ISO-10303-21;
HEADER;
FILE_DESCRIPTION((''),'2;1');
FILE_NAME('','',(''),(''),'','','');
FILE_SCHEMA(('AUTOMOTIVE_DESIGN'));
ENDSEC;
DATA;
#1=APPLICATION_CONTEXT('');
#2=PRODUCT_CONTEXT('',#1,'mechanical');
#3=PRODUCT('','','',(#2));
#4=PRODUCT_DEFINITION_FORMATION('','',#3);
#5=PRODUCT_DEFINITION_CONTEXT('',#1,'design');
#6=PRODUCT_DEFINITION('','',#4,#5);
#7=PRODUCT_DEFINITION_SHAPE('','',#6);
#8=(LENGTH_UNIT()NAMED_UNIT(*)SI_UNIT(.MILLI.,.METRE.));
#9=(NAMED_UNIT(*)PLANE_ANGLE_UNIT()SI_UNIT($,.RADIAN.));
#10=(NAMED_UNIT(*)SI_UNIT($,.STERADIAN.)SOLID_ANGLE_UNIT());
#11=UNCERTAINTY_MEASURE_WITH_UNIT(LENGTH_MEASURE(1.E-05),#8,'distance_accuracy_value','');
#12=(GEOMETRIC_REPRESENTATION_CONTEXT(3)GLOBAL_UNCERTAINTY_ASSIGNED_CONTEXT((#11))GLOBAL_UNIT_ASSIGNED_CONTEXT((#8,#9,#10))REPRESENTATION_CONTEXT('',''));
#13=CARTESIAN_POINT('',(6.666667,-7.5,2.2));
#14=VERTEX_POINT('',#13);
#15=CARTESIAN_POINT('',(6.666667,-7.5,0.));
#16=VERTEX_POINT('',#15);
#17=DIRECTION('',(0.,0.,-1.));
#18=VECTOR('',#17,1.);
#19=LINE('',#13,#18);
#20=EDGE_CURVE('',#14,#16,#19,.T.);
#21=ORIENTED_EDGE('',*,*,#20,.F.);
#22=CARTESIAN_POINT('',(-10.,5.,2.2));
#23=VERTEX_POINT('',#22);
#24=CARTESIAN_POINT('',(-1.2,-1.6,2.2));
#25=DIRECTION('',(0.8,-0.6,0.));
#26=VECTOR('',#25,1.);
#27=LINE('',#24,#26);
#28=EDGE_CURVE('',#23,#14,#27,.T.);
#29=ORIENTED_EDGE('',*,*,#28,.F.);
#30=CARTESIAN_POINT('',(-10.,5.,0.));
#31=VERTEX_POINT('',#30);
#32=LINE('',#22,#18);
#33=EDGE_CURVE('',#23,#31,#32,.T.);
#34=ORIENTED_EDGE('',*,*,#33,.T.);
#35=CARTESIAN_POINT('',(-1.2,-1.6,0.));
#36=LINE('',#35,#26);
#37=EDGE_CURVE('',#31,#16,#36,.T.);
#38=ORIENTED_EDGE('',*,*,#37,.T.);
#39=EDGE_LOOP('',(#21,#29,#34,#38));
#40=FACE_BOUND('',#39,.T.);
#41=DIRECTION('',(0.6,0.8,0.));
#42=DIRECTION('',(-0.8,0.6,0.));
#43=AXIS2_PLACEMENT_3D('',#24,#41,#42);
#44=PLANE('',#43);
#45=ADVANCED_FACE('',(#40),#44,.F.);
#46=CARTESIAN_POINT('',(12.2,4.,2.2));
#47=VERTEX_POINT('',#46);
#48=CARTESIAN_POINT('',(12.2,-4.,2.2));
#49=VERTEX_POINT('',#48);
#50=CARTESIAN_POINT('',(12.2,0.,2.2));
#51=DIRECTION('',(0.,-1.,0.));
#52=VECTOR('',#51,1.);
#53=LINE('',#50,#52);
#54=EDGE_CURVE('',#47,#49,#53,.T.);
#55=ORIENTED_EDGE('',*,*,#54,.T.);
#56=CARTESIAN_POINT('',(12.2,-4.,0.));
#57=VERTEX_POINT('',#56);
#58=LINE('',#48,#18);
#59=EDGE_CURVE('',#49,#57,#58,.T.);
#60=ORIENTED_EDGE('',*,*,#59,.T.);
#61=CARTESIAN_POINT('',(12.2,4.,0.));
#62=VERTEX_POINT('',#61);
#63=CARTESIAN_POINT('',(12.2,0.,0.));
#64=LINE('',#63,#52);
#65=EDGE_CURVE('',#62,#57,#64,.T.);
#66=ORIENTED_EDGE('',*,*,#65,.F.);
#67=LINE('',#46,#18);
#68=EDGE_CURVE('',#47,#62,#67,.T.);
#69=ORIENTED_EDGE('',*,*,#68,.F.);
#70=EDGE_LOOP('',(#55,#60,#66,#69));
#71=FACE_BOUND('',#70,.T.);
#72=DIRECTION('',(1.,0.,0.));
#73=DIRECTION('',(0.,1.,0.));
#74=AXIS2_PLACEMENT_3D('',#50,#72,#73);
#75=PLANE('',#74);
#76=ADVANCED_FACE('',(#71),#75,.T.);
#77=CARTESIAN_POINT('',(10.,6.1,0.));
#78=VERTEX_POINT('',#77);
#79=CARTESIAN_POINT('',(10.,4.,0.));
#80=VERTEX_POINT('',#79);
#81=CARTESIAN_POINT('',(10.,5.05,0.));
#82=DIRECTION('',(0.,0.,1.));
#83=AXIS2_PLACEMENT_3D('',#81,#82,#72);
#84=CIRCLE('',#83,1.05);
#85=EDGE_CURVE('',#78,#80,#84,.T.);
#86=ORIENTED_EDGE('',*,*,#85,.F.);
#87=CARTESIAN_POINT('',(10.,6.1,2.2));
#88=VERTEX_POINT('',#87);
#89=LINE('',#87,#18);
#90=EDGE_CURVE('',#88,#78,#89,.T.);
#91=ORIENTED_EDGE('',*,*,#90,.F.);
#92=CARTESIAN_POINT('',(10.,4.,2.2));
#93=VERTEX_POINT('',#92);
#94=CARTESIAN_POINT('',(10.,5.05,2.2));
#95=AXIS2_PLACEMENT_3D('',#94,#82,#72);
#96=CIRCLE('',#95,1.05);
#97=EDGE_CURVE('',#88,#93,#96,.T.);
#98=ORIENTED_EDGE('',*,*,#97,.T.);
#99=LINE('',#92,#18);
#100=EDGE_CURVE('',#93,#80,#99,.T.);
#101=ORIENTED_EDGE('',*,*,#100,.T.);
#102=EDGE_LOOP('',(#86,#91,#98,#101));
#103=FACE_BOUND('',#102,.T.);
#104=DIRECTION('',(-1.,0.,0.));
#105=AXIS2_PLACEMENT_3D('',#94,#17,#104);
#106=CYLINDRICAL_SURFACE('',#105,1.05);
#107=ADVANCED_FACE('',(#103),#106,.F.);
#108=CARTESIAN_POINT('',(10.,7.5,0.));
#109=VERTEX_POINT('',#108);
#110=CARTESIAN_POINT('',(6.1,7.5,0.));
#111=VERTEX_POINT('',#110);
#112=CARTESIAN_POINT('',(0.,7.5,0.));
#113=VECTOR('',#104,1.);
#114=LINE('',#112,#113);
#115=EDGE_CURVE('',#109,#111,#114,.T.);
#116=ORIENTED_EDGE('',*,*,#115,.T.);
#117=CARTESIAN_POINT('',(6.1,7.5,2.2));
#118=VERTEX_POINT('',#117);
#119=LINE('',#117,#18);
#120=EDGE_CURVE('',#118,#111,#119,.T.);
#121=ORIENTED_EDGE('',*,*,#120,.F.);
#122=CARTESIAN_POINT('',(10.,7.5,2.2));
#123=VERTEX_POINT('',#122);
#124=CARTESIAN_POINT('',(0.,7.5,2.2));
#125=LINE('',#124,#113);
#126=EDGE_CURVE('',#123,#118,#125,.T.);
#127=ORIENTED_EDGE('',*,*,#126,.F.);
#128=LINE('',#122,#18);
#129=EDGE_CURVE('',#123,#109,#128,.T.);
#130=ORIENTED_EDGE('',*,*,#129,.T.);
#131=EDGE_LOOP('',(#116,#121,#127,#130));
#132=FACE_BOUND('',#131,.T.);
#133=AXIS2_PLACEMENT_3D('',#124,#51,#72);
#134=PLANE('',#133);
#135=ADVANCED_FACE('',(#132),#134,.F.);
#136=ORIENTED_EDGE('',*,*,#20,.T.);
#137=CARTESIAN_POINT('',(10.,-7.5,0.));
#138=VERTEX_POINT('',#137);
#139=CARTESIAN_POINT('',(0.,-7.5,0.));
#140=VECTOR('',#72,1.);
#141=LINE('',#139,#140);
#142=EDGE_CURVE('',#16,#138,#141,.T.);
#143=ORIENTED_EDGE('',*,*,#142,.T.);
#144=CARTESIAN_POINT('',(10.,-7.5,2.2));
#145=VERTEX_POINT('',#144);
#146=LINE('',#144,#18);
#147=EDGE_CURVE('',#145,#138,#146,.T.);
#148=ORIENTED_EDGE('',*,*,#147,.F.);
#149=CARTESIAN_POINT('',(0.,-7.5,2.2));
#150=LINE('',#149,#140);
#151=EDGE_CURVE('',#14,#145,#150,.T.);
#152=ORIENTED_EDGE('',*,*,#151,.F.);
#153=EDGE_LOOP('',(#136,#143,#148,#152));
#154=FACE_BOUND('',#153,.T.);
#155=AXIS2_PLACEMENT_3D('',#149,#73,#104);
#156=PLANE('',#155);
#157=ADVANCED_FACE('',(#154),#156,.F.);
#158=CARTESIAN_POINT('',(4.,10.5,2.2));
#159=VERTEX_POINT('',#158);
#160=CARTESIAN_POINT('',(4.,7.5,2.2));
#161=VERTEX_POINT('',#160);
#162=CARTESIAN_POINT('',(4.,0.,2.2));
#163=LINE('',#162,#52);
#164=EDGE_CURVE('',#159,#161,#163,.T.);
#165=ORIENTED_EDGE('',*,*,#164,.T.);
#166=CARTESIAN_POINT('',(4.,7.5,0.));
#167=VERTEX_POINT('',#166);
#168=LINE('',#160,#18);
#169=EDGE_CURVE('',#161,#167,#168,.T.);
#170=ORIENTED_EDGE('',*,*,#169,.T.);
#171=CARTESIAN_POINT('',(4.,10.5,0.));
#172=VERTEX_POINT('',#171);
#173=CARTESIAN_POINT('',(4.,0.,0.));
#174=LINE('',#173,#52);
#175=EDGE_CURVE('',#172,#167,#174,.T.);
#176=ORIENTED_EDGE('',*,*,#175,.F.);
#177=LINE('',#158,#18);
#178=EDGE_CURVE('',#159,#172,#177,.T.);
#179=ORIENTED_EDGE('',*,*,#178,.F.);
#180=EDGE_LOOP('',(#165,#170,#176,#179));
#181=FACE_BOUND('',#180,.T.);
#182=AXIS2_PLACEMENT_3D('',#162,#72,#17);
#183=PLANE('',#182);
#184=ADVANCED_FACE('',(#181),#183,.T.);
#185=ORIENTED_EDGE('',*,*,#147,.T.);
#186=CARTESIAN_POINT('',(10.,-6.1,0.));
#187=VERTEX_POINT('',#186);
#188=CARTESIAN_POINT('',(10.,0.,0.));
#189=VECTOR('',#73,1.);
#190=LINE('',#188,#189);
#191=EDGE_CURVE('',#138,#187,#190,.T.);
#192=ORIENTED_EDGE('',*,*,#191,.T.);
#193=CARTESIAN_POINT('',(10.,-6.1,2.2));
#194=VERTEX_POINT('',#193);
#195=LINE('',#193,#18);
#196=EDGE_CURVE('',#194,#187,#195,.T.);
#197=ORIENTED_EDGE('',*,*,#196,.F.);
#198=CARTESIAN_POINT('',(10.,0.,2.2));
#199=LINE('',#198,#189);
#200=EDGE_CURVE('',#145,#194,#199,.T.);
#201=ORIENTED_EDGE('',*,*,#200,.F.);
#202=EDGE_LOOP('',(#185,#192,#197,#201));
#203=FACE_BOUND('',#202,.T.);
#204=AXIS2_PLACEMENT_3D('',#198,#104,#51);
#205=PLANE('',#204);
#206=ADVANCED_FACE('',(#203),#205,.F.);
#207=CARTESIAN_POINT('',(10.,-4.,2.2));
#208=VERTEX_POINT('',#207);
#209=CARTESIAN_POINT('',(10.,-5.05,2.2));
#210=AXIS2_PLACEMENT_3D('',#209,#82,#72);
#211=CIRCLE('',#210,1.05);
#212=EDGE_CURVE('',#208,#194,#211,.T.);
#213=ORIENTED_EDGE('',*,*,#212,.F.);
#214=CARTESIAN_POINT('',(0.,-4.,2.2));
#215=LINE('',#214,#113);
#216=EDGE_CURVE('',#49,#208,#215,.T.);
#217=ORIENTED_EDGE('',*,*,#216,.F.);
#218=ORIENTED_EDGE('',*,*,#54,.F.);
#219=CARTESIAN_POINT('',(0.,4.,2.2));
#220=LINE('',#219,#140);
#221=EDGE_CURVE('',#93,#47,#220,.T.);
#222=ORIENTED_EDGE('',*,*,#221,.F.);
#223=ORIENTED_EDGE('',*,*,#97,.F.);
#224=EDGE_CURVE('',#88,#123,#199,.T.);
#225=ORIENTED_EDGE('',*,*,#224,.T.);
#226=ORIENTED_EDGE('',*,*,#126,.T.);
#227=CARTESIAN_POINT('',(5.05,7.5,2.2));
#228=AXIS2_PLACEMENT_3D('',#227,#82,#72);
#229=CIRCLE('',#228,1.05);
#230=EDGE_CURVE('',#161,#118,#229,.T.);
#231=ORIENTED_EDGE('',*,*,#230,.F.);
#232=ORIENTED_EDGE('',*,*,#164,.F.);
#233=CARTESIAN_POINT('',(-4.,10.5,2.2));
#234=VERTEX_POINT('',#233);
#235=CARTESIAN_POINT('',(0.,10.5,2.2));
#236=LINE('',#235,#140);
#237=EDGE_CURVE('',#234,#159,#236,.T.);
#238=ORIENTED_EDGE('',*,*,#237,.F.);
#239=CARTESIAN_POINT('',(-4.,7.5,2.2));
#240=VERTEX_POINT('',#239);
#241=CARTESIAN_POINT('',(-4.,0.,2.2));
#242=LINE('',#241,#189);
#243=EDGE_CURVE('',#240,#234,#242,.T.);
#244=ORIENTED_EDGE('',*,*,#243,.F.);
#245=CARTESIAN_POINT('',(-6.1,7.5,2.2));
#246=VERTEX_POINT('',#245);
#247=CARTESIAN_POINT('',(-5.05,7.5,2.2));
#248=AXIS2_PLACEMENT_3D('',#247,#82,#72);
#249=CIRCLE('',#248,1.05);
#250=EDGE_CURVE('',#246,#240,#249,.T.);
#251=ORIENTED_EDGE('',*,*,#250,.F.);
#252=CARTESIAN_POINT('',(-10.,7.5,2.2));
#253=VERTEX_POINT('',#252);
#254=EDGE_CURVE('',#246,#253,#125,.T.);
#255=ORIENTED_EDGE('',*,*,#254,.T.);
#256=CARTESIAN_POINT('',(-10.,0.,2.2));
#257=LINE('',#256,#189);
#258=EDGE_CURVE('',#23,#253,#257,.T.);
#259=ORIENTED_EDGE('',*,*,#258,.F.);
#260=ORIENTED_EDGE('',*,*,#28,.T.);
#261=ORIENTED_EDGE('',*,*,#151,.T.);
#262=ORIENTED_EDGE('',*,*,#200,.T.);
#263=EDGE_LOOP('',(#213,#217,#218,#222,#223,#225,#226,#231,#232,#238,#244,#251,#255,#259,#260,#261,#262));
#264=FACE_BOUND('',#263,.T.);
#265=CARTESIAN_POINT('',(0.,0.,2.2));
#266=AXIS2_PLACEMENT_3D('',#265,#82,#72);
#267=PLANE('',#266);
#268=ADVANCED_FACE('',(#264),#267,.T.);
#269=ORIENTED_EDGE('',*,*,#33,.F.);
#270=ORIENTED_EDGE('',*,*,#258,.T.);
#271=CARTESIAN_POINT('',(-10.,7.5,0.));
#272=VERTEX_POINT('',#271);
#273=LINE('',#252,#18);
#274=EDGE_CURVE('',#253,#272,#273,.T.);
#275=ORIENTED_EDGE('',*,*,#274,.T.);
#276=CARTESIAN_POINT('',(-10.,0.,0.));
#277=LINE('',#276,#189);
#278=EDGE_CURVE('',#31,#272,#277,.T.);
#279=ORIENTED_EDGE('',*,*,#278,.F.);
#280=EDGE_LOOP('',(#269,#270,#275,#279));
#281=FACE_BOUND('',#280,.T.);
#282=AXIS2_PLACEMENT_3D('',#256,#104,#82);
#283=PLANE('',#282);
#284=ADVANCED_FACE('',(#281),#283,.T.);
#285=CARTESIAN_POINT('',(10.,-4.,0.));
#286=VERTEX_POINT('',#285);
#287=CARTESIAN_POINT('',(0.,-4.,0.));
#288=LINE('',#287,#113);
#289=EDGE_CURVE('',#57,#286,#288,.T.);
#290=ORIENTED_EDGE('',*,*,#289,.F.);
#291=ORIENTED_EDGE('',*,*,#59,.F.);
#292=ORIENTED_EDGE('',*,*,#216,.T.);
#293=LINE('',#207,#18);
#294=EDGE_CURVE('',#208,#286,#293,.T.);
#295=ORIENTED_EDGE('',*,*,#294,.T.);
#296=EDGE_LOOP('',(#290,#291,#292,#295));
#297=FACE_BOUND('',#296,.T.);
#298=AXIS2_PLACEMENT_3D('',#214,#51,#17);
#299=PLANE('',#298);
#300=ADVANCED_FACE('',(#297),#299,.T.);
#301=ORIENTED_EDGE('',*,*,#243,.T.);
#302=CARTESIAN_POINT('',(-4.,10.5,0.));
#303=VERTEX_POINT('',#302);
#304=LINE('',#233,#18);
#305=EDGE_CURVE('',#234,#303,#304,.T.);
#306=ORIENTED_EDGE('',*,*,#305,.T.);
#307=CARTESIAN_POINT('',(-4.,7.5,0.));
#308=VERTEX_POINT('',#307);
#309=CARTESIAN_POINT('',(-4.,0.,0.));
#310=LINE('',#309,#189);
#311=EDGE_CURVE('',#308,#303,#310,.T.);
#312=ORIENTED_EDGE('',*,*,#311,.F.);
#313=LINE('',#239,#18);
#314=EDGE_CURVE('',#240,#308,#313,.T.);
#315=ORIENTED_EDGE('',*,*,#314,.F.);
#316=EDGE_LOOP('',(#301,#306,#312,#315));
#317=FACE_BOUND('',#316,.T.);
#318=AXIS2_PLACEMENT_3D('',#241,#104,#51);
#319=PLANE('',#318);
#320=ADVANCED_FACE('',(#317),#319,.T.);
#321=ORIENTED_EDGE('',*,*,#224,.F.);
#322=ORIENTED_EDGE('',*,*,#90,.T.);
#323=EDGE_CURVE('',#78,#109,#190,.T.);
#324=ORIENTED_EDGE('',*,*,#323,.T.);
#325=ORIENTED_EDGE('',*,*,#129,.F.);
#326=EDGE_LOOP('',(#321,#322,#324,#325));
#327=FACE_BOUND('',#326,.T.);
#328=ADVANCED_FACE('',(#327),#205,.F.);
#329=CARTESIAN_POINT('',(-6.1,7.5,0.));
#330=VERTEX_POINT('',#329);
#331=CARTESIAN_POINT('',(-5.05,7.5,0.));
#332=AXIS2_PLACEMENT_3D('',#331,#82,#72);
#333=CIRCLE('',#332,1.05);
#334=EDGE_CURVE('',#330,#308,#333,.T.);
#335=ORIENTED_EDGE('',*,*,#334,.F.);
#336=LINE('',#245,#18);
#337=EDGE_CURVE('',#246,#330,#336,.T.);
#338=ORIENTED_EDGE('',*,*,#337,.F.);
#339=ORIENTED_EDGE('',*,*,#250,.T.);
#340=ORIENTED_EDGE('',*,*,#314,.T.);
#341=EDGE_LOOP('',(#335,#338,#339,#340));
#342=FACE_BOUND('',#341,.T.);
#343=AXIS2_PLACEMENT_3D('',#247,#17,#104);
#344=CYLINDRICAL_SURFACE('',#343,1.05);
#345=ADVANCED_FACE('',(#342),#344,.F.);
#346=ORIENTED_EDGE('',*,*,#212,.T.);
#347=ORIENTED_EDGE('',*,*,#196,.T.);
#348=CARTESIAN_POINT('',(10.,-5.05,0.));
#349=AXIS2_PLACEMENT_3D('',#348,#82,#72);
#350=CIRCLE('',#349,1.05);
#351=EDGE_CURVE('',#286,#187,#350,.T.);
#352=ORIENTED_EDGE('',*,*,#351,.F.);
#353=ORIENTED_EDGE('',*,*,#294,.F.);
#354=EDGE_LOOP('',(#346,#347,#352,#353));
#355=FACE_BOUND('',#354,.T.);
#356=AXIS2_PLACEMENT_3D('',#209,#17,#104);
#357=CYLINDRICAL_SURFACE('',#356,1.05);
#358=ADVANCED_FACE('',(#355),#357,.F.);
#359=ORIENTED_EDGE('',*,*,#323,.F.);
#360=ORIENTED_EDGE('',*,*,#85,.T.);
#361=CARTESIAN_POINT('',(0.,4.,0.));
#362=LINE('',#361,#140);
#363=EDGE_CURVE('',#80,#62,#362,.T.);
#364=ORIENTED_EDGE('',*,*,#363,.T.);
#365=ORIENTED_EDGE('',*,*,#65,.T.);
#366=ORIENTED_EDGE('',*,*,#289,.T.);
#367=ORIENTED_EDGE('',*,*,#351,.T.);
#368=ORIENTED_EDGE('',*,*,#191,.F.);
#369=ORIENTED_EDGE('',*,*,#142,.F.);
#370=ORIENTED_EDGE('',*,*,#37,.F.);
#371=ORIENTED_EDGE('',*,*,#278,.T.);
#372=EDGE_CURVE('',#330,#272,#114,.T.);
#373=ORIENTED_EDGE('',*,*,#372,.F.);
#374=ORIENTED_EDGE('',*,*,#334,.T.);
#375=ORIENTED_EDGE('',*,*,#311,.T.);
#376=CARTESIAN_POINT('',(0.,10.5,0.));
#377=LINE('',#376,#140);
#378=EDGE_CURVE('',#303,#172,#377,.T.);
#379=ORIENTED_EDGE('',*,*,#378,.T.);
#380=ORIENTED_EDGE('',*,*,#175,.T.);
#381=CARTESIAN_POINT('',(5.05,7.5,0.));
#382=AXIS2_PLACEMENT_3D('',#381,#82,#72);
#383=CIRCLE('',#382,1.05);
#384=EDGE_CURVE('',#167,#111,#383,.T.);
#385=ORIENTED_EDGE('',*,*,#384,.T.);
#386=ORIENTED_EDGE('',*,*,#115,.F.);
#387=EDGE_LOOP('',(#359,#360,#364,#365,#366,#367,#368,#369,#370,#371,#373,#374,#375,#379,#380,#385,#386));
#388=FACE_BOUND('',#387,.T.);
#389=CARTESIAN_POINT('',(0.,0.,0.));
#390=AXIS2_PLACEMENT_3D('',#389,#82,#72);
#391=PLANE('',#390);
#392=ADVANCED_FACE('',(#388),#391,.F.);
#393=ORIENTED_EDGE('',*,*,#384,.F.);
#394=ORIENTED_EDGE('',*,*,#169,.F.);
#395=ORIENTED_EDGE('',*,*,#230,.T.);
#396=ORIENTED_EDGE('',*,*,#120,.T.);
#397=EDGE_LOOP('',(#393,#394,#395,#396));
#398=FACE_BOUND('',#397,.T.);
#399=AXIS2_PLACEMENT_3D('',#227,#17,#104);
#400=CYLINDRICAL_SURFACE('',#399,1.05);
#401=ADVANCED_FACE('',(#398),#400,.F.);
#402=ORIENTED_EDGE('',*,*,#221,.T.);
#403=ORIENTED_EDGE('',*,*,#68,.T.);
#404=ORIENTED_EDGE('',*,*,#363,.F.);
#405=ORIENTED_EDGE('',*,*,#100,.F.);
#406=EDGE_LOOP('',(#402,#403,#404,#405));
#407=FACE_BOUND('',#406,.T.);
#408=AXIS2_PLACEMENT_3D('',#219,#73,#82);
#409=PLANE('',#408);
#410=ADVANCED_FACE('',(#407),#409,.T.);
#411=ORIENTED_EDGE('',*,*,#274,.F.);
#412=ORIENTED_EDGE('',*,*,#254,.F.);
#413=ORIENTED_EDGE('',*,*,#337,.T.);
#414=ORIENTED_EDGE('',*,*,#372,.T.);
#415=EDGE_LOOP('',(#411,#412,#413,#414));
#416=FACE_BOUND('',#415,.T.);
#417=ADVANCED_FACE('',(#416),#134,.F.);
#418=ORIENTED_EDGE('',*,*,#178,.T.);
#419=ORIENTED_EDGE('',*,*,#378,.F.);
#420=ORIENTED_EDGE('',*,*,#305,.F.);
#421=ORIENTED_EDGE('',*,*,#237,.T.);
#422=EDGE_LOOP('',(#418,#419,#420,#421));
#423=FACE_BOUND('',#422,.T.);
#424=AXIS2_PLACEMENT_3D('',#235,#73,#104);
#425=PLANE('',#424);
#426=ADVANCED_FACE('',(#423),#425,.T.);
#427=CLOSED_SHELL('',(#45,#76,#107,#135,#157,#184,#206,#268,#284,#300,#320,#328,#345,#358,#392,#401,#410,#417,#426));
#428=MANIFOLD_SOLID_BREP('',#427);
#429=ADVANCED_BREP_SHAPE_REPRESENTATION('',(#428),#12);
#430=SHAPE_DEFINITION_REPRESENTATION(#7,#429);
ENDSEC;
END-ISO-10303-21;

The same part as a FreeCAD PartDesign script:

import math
import FreeCAD as App
import Part
import Sketcher

V = App.Vector

doc = App.newDocument("Part")
body = doc.addObject("PartDesign::Body", "Body")

# Sketch on XY plane
sketch1 = body.newObject("Sketcher::SketchObject", "Sketch")
sketch1.AttachmentSupport = (doc.getObject("XY_Plane"), [""])
sketch1.MapMode = "FlatFace"
sketch1.addGeometry([
    Part.LineSegment(V(-4, 10.5, 0), V(-4, 7.5, 0)),  # 0
    Part.ArcOfCircle(Part.Circle(V(-5.05, 7.5, 0), V(0, 0, 1), 1.05), math.radians(180), math.radians(360)),  # 1
    Part.LineSegment(V(-6.1, 7.5, 0), V(-10, 7.5, 0)),  # 2
    Part.LineSegment(V(-10, 7.5, 0), V(-10, 5, 0)),  # 3
    Part.LineSegment(V(-10, 5, 0), V(6.666667, -7.5, 0)),  # 4
    Part.LineSegment(V(6.666667, -7.5, 0), V(10, -7.5, 0)),  # 5
    Part.LineSegment(V(10, -7.5, 0), V(10, -6.1, 0)),  # 6
    Part.ArcOfCircle(Part.Circle(V(10, -5.05, 0), V(0, 0, 1), 1.05), math.radians(90), math.radians(270)),  # 7
    Part.LineSegment(V(10, -4, 0), V(12.2, -4, 0)),  # 8
    Part.LineSegment(V(12.2, -4, 0), V(12.2, 4, 0)),  # 9
    Part.LineSegment(V(12.2, 4, 0), V(10, 4, 0)),  # 10
    Part.ArcOfCircle(Part.Circle(V(10, 5.05, 0), V(0, 0, 1), 1.05), math.radians(90), math.radians(270)),  # 11
    Part.LineSegment(V(10, 6.1, 0), V(10, 7.5, 0)),  # 12
    Part.LineSegment(V(10, 7.5, 0), V(6.1, 7.5, 0)),  # 13
    Part.ArcOfCircle(Part.Circle(V(5.05, 7.5, 0), V(0, 0, 1), 1.05), math.radians(180), math.radians(360)),  # 14
    Part.LineSegment(V(4, 7.5, 0), V(4, 10.5, 0)),  # 15
    Part.LineSegment(V(4, 10.5, 0), V(-4, 10.5, 0)),  # 16
], False)
sketch1.addConstraint([
    Sketcher.Constraint("Tangent", 0, 2, 1, 2),
    Sketcher.Constraint("Coincident", 1, 1, 2, 1),
    Sketcher.Constraint("Coincident", 2, 2, 3, 1),
    Sketcher.Constraint("Coincident", 3, 2, 4, 1),
    Sketcher.Constraint("Coincident", 4, 2, 5, 1),
    Sketcher.Constraint("Coincident", 5, 2, 6, 1),
    Sketcher.Constraint("Coincident", 6, 2, 7, 2),
    Sketcher.Constraint("Tangent", 7, 1, 8, 1),
    Sketcher.Constraint("Coincident", 8, 2, 9, 1),
    Sketcher.Constraint("Coincident", 9, 2, 10, 1),
    Sketcher.Constraint("Tangent", 10, 2, 11, 2),
    Sketcher.Constraint("Coincident", 11, 1, 12, 1),
    Sketcher.Constraint("Coincident", 12, 2, 13, 1),
    Sketcher.Constraint("Coincident", 13, 2, 14, 2),
    Sketcher.Constraint("Tangent", 14, 1, 15, 1),
    Sketcher.Constraint("Coincident", 15, 2, 16, 1),
    Sketcher.Constraint("Coincident", 16, 2, 0, 1),
    Sketcher.Constraint("Vertical", 0),
    Sketcher.Constraint("Horizontal", 2),
    Sketcher.Constraint("Vertical", 3),
    Sketcher.Constraint("Horizontal", 5),
    Sketcher.Constraint("Vertical", 6),
    Sketcher.Constraint("Horizontal", 8),
    Sketcher.Constraint("Vertical", 9),
    Sketcher.Constraint("Horizontal", 10),
    Sketcher.Constraint("Vertical", 12),
    Sketcher.Constraint("Horizontal", 13),
    Sketcher.Constraint("Vertical", 15),
    Sketcher.Constraint("Horizontal", 16),
    Sketcher.Constraint("Equal", 1, 7),
    Sketcher.Constraint("Equal", 7, 11),
    Sketcher.Constraint("Equal", 11, 14),
    Sketcher.Constraint("Symmetric", 2, 2, 5, 2, -1, 1),
    Sketcher.Constraint("Symmetric", 1, 3, 14, 3, -2),
    Sketcher.Constraint("Symmetric", 2, 2, 12, 2, -2),
    Sketcher.Constraint("Symmetric", 7, 3, 11, 3, -1),
    Sketcher.Constraint("Horizontal", 0, 2, 1, 1),
    Sketcher.Constraint("Vertical", 11, 3, 5, 2),
    Sketcher.Constraint("Equal", 16, 9),
    Sketcher.Constraint("DistanceX", 16, 2, 16, 1, 8.0),
    Sketcher.Constraint("DistanceY", 0, 2, 0, 1, 3.0),
    Sketcher.Constraint("Radius", 1, 1.05),
    Sketcher.Constraint("DistanceX", 2, 2, 2, 1, 3.9),
    Sketcher.Constraint("DistanceX", 8, 1, 8, 2, 2.2),
    Sketcher.Constraint("DistanceY", 3, 2, 3, 1, 2.5),
    Sketcher.Constraint("DistanceY", 6, 1, 6, 2, 1.4),
    Sketcher.Constraint("DistanceX", 5, 1, 5, 2, 3.333333),
])
pad1 = body.newObject("PartDesign::Pad", "Pad")
pad1.Profile = sketch1
pad1.Length = 2.2

doc.recompute()
